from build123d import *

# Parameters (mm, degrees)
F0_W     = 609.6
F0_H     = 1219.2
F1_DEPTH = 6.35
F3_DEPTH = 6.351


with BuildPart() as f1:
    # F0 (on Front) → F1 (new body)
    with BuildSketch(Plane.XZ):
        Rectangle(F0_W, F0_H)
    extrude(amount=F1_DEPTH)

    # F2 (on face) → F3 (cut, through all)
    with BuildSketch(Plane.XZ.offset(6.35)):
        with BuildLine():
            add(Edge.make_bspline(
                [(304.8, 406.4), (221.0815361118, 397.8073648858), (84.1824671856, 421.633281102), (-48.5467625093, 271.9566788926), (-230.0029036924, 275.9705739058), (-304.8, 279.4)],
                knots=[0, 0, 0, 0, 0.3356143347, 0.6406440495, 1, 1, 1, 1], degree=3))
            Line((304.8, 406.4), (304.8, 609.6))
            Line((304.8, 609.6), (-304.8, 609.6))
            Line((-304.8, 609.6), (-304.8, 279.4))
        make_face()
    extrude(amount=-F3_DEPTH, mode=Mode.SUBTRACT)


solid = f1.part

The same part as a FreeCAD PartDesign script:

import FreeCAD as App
import Part
import Sketcher
from FreeCAD import Vector
Q = App.Units.Quantity


def add_polygon(sketch, points):
    """Adds a closed chain of lines whose ends are joined by coincident constraints."""
    first, n = sketch.GeometryCount, len(points)
    for a, b in zip(points, points[1:] + points[:1]):
        sketch.addGeometry(Part.LineSegment(App.Vector(*a, 0), App.Vector(*b, 0)), False)
    for i in range(n):
        sketch.addConstraint(Sketcher.Constraint("Coincident", first + i, 2, first + (i + 1) % n, 1))

doc = App.newDocument("Part")
body = doc.addObject("PartDesign::Body", "Body")

# Sketch on XZ plane
sketch1 = body.newObject("Sketcher::SketchObject", "Sketch")
sketch1.AttachmentSupport = (doc.getObject("XZ_Plane"), [""])
sketch1.MapMode = "FlatFace"
add_polygon(sketch1, [(-304.8, 609.6), (-304.8, -609.6), (304.8, -609.6), (304.8, 609.6)])  # lines 0-3
sketch1.addConstraint(Sketcher.Constraint("Vertical", 0))
sketch1.addConstraint(Sketcher.Constraint("Horizontal", 1))
sketch1.addConstraint(Sketcher.Constraint("Vertical", 2))
sketch1.addConstraint(Sketcher.Constraint("Horizontal", 3))
sketch1.addConstraint(Sketcher.Constraint("Symmetric", 0, 2, 2, 2, -1, 1))
sketch1.addConstraint(Sketcher.Constraint("DistanceX", 1, 1, 1, 2, Q("24 in")))
sketch1.addConstraint(Sketcher.Constraint("DistanceY", 0, 2, 0, 1, Q("48 in")))
pad1 = body.newObject("PartDesign::Pad", "Pad")
pad1.Profile = sketch1
pad1.Length = Q("0.25 in")

# Sketch on XZ plane
sketch2 = body.newObject("Sketcher::SketchObject", "Sketch001")
sketch2.AttachmentSupport = (doc.getObject("XZ_Plane"), [""])
sketch2.MapMode = "FlatFace"
sketch2.AttachmentOffset = App.Placement(Vector(0, 0, 0.25 * 25.4), App.Rotation())
sketch2.addGeometry(Part.BSplineCurve([Vector(304.8, 406.4, 0), Vector(221.081536, 397.807365, 0), Vector(84.182467, 421.633281, 0), Vector(-48.546763, 271.956679, 0), Vector(-230.002904, 275.970574, 0), Vector(-304.8, 279.4, 0)], [4, 1, 1, 4], [0, 0.335614335, 0.640644049, 1], False, 3, [1, 1, 1, 1, 1, 1], False), False)
sketch2.addGeometry(Part.LineSegment(Vector(304.8, 406.4, 0), Vector(304.8, 609.6, 0)), False)
sketch2.addGeometry(Part.LineSegment(Vector(304.8, 609.6, 0), Vector(-304.8, 609.6, 0)), False)
sketch2.addGeometry(Part.LineSegment(Vector(-304.8, 609.6, 0), Vector(-304.8, 279.4, 0)), False)
sketch2.addConstraint(Sketcher.Constraint("Block", 0))
sketch2.addConstraint(Sketcher.Constraint("Coincident", 0, 1, 1, 1))
sketch2.addConstraint(Sketcher.Constraint("Coincident", 1, 2, 2, 1))
sketch2.addConstraint(Sketcher.Constraint("Coincident", 2, 2, 3, 1))
sketch2.addConstraint(Sketcher.Constraint("Coincident", 3, 2, 0, 2))
sketch2.addConstraint(Sketcher.Constraint("Vertical", 1))
sketch2.addConstraint(Sketcher.Constraint("Horizontal", 2))
sketch2.addConstraint(Sketcher.Constraint("Vertical", 3))
sketch2.addConstraint(Sketcher.Constraint("DistanceY", 1, 1, 1, 2, Q("8 in")))
pocket1 = body.newObject("PartDesign::Pocket", "Pocket")
pocket1.Profile = sketch2
pocket1.Type = "ThroughAll"

doc.recompute()
